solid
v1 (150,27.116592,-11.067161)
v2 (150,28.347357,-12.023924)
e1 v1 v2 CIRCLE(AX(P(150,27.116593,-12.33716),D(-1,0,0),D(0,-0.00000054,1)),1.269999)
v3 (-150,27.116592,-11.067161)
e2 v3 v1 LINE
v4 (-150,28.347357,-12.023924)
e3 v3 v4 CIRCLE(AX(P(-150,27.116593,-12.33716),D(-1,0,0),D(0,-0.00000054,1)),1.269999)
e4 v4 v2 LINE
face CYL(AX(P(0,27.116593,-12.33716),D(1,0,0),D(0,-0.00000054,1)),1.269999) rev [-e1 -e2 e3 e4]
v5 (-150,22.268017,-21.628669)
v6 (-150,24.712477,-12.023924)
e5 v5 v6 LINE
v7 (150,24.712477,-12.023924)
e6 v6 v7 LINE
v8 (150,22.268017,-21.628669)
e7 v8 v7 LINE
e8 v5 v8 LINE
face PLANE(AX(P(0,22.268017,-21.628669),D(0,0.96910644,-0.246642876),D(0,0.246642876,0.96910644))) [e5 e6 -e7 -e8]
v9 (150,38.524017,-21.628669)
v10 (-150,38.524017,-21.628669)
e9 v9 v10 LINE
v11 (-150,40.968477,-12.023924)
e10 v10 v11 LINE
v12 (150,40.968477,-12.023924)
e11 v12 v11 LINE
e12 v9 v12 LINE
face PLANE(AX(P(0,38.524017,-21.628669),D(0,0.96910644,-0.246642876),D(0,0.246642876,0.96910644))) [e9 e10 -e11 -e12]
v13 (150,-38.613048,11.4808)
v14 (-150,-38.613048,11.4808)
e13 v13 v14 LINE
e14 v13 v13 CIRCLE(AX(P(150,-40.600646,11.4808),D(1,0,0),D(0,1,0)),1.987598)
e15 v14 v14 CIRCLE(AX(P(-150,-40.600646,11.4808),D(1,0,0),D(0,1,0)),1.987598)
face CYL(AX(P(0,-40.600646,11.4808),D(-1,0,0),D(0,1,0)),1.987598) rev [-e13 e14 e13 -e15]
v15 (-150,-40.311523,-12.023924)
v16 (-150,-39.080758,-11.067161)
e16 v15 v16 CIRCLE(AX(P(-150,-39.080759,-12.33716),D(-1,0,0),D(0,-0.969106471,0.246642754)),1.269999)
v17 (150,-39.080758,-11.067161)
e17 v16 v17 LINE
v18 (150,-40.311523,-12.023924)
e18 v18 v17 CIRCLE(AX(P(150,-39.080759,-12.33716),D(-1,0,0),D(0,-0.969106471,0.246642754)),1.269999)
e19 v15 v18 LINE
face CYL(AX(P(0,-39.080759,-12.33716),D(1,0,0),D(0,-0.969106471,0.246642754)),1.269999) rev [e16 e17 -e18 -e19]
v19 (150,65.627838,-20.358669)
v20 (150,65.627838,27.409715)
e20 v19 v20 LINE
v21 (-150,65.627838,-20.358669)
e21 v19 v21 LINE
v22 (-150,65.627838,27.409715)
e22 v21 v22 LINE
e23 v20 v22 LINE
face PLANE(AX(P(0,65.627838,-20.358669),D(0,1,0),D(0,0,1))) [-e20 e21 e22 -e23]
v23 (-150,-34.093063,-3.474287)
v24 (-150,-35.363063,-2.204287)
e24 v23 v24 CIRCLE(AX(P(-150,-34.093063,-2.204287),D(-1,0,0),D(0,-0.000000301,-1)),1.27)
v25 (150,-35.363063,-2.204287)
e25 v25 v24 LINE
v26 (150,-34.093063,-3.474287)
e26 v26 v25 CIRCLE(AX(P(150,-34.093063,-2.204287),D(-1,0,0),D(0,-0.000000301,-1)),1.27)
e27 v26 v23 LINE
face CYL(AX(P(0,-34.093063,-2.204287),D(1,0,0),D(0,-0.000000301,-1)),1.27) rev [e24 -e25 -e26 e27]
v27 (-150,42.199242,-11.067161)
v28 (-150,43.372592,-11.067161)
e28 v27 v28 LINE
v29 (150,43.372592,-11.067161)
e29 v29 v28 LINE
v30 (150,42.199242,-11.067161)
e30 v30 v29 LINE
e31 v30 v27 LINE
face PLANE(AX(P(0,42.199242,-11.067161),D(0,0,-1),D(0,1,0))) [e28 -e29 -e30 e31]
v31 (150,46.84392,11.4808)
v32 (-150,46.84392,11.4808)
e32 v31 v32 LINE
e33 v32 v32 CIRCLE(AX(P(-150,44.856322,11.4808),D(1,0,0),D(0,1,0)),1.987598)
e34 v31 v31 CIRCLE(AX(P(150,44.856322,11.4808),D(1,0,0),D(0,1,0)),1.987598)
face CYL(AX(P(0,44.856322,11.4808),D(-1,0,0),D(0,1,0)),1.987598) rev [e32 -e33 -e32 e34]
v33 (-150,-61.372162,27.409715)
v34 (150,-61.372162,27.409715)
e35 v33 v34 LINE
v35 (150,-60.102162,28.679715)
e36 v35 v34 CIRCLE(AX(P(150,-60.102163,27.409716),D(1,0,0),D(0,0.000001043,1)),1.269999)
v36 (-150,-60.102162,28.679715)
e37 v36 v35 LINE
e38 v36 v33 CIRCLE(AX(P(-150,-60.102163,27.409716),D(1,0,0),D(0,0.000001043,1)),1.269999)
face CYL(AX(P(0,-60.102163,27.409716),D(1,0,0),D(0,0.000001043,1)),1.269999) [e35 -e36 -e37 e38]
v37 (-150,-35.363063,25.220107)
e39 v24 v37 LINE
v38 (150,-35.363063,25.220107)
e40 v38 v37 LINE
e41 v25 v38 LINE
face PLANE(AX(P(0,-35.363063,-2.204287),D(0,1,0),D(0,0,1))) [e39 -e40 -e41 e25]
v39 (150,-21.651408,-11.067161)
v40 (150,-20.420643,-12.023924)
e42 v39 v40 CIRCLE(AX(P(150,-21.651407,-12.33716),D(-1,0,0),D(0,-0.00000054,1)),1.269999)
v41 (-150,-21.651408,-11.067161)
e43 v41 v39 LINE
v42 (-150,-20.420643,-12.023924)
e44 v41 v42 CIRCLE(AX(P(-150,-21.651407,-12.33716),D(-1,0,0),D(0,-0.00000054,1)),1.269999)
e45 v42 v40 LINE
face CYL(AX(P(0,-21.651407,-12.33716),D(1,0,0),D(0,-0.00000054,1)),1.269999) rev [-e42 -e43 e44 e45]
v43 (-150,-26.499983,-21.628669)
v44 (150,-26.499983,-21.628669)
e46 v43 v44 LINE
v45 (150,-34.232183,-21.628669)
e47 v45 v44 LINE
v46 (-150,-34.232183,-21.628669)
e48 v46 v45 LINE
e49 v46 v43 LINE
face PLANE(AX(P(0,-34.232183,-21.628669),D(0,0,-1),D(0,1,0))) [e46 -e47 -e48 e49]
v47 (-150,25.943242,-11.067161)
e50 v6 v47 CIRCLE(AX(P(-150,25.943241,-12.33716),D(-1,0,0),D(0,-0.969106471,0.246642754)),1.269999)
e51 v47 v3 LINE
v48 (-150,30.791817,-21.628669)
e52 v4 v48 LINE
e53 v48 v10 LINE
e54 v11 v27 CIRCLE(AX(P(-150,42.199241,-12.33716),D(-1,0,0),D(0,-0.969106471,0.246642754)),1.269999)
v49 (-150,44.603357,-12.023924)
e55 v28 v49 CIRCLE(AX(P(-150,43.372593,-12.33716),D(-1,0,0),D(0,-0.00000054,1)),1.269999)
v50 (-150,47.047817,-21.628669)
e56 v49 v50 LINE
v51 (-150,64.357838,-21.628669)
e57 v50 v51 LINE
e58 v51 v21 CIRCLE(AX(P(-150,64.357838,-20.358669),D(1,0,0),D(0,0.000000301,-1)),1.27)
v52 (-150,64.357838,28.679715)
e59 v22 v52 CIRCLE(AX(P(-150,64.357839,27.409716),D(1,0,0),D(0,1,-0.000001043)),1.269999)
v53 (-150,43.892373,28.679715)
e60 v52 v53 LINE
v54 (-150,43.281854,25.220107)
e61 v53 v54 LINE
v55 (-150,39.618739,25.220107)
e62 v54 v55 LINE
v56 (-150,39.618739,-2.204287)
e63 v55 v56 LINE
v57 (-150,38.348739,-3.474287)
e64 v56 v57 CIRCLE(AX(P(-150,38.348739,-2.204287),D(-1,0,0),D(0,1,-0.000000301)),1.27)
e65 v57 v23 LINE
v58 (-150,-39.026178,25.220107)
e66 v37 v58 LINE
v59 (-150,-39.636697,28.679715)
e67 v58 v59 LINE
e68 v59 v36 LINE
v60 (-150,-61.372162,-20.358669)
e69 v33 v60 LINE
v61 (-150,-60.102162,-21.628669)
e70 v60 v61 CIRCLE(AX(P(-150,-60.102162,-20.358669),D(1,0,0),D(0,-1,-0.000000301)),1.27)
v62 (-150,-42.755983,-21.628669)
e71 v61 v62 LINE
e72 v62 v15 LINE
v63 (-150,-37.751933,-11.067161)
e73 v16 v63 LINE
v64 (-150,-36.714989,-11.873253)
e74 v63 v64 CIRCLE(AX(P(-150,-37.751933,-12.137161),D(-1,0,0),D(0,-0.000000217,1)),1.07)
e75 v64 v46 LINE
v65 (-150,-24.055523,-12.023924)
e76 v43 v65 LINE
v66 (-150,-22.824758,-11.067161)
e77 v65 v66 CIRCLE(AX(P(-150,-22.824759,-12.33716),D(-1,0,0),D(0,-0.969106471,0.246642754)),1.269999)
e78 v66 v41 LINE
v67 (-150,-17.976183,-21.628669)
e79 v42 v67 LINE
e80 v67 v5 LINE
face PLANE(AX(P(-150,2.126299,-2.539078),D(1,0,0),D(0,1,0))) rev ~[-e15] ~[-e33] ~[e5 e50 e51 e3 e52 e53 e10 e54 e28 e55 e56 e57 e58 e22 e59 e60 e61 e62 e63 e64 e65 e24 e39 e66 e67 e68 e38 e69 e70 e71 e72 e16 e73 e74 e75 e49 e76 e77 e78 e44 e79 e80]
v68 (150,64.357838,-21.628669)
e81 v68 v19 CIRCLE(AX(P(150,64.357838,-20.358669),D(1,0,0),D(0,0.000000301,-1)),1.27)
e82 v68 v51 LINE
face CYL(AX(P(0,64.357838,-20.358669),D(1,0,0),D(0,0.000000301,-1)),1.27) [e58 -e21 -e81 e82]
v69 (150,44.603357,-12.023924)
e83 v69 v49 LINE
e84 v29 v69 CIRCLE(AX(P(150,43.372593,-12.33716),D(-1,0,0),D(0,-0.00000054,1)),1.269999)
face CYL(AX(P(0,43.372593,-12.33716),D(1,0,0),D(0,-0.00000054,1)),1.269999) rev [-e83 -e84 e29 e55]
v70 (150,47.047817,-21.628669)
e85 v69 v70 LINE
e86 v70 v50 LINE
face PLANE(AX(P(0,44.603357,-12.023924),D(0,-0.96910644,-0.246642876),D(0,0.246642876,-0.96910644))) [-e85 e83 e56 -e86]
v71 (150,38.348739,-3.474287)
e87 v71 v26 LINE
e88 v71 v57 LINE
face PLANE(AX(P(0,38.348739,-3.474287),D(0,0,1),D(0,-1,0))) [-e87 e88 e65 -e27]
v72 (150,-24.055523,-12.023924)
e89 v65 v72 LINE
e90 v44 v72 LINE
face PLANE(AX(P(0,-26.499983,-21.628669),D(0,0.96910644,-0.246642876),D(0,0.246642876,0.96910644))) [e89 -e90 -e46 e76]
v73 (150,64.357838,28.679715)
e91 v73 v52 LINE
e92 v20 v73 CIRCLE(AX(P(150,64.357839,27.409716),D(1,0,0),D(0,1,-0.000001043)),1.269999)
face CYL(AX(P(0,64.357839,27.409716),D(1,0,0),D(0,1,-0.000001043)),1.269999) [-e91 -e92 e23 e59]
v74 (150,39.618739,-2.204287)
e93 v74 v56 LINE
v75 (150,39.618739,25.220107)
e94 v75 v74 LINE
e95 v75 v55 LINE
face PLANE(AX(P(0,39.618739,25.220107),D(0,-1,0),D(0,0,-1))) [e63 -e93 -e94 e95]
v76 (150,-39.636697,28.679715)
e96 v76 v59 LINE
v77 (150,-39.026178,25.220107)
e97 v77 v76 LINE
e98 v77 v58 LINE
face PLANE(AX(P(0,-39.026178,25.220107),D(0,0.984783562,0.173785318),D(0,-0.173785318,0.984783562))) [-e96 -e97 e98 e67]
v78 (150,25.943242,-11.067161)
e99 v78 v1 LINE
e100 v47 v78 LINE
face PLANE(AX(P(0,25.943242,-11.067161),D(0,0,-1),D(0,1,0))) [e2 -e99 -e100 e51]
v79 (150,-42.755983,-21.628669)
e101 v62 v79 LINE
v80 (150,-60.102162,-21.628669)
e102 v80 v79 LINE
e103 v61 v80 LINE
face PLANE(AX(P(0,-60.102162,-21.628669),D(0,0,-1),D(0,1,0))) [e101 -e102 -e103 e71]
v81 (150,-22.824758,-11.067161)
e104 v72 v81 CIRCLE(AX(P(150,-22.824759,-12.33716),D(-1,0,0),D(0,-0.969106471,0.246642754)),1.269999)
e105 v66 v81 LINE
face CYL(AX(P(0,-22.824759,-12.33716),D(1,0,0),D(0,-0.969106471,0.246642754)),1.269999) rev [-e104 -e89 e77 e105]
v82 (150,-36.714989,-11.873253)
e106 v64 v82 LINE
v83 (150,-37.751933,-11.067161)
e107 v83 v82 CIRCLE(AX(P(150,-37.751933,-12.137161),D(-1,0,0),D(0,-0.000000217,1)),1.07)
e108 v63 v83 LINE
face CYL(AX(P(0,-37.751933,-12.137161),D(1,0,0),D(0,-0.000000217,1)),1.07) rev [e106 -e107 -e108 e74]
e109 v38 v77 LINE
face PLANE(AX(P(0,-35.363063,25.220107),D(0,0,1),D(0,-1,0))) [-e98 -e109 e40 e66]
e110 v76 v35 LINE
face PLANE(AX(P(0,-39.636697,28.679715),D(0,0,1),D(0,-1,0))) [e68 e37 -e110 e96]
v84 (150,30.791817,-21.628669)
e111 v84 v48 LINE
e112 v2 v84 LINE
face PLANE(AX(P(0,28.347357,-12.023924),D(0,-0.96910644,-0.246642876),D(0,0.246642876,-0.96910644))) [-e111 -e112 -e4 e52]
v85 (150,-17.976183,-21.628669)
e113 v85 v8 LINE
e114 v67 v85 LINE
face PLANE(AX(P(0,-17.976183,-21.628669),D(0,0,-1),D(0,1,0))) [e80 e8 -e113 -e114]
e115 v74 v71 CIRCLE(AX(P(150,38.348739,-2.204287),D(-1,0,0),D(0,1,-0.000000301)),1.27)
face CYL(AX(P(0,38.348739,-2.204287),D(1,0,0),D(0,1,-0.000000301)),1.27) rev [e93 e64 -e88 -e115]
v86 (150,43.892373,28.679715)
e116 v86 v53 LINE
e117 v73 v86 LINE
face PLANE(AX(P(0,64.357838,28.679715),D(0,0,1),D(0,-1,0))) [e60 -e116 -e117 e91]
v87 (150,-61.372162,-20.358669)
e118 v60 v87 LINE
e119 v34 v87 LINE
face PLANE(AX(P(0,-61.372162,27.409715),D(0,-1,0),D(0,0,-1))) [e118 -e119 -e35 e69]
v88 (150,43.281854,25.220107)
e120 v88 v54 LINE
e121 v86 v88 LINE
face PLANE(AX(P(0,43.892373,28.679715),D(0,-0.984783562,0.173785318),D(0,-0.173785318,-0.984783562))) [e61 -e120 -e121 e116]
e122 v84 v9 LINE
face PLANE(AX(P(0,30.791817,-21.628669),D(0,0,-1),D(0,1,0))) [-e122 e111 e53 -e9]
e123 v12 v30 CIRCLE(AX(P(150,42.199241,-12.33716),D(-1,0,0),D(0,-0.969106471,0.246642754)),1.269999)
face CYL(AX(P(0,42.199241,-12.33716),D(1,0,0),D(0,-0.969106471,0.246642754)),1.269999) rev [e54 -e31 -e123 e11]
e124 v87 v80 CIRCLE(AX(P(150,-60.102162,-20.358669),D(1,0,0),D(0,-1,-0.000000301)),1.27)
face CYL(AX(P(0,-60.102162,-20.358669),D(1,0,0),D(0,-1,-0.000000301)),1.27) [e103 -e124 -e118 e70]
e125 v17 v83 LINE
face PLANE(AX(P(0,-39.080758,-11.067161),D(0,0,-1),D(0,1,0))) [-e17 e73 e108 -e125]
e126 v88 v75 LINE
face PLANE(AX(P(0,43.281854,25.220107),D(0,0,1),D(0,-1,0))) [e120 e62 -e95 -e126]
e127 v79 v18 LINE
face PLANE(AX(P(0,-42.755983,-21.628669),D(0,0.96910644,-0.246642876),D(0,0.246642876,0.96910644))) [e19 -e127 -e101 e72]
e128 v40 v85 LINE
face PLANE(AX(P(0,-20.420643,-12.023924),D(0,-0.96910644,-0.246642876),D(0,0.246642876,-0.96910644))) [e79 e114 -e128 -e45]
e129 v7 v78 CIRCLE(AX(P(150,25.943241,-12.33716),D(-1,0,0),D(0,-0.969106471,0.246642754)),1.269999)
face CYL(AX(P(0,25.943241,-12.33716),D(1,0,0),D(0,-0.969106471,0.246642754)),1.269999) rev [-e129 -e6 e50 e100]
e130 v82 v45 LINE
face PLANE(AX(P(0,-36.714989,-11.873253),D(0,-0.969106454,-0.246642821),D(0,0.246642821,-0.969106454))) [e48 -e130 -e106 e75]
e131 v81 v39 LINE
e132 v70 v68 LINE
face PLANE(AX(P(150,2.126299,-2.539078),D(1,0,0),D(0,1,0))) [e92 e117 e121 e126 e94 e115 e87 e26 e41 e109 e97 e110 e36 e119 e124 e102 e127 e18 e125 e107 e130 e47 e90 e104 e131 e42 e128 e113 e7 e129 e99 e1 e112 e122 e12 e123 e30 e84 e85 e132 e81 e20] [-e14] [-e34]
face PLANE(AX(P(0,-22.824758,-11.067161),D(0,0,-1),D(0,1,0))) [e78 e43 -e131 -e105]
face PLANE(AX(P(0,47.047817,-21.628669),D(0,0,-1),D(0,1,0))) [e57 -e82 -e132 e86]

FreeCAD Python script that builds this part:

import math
import FreeCAD as App
import Part
import Sketcher
Q = App.Units.Quantity

doc = App.newDocument("Part")
body = doc.addObject("PartDesign::Body", "Body")

# Sketch on YZ plane
sketch1 = body.newObject("Sketcher::SketchObject", "Sketch")
sketch1.AttachmentSupport = (doc.getObject("YZ_Plane"), [""])
sketch1.MapMode = "FlatFace"
sketch1.addGeometry([
    Part.LineSegment(App.Vector(-39.6, 28.7, 0), App.Vector(-60.1, 28.7, 0)),  # 0
    Part.ArcOfCircle(Part.Circle(App.Vector(-60.1, 27.4, 0), App.Vector(0, 0, 1), 1.3), math.radians(90), math.radians(180)),  # 1
    Part.LineSegment(App.Vector(-61.4, 27.4, 0), App.Vector(-61.4, -20.4, 0)),  # 2
    Part.ArcOfCircle(Part.Circle(App.Vector(-60.1, -20.4, 0), App.Vector(0, 0, 1), 1.3), math.radians(-180), math.radians(-90)),  # 3
    Part.LineSegment(App.Vector(-60.1, -21.6, 0), App.Vector(-42.8, -21.6, 0)),  # 4
    Part.LineSegment(App.Vector(-42.8, -21.6, 0), App.Vector(-40.3, -12, 0)),  # 5
    Part.ArcOfCircle(Part.Circle(App.Vector(-39.1, -12.3, 0), App.Vector(0, 0, 1), 1.3), math.radians(90), math.radians(166)),  # 6
    Part.LineSegment(App.Vector(-39.1, -11.1, 0), App.Vector(-37.8, -11.1, 0)),  # 7
    Part.ArcOfCircle(Part.Circle(App.Vector(-37.8, -12.1, 0), App.Vector(0, 0, 1), 1.1), math.radians(14), math.radians(90)),  # 8
    Part.LineSegment(App.Vector(-36.7, -11.9, 0), App.Vector(-34.2, -21.6, 0)),  # 9
    Part.LineSegment(App.Vector(-34.2, -21.6, 0), App.Vector(-26.5, -21.6, 0)),  # 10
    Part.LineSegment(App.Vector(-26.5, -21.6, 0), App.Vector(-24.1, -12, 0)),  # 11
    Part.ArcOfCircle(Part.Circle(App.Vector(-22.8, -12.3, 0), App.Vector(0, 0, 1), 1.3), math.radians(90), math.radians(166)),  # 12
    Part.LineSegment(App.Vector(-22.8, -11.1, 0), App.Vector(-21.7, -11.1, 0)),  # 13
    Part.ArcOfCircle(Part.Circle(App.Vector(-21.7, -12.3, 0), App.Vector(0, 0, 1), 1.3), math.radians(14), math.radians(90)),  # 14
    Part.LineSegment(App.Vector(-20.4, -12, 0), App.Vector(-18, -21.6, 0)),  # 15
    Part.LineSegment(App.Vector(-18, -21.6, 0), App.Vector(22.3, -21.6, 0)),  # 16
    Part.LineSegment(App.Vector(22.3, -21.6, 0), App.Vector(24.7, -12, 0)),  # 17
    Part.ArcOfCircle(Part.Circle(App.Vector(25.9, -12.3, 0), App.Vector(0, 0, 1), 1.3), math.radians(90), math.radians(166)),  # 18
    Part.LineSegment(App.Vector(25.9, -11.1, 0), App.Vector(27.1, -11.1, 0)),  # 19
    Part.ArcOfCircle(Part.Circle(App.Vector(27.1, -12.3, 0), App.Vector(0, 0, 1), 1.3), math.radians(14), math.radians(90)),  # 20
    Part.LineSegment(App.Vector(28.3, -12, 0), App.Vector(30.8, -21.6, 0)),  # 21
    Part.LineSegment(App.Vector(30.8, -21.6, 0), App.Vector(38.5, -21.6, 0)),  # 22
    Part.LineSegment(App.Vector(38.5, -21.6, 0), App.Vector(41, -12, 0)),  # 23
    Part.ArcOfCircle(Part.Circle(App.Vector(42.2, -12.3, 0), App.Vector(0, 0, 1), 1.3), math.radians(90), math.radians(166)),  # 24
    Part.LineSegment(App.Vector(42.2, -11.1, 0), App.Vector(43.4, -11.1, 0)),  # 25
    Part.ArcOfCircle(Part.Circle(App.Vector(43.4, -12.3, 0), App.Vector(0, 0, 1), 1.3), math.radians(14), math.radians(90)),  # 26
    Part.LineSegment(App.Vector(44.6, -12, 0), App.Vector(47, -21.6, 0)),  # 27
    Part.LineSegment(App.Vector(47, -21.6, 0), App.Vector(64.4, -21.6, 0)),  # 28
    Part.ArcOfCircle(Part.Circle(App.Vector(64.4, -20.4, 0), App.Vector(0, 0, 1), 1.3), math.radians(-90), math.radians(0)),  # 29
    Part.LineSegment(App.Vector(65.6, -20.4, 0), App.Vector(65.6, 27.4, 0)),  # 30
    Part.ArcOfCircle(Part.Circle(App.Vector(64.4, 27.4, 0), App.Vector(0, 0, 1), 1.3), math.radians(0), math.radians(90)),  # 31
    Part.LineSegment(App.Vector(64.4, 28.7, 0), App.Vector(43.9, 28.7, 0)),  # 32
    Part.LineSegment(App.Vector(43.9, 28.7, 0), App.Vector(43.3, 25.2, 0)),  # 33
    Part.LineSegment(App.Vector(43.3, 25.2, 0), App.Vector(39.6, 25.2, 0)),  # 34
    Part.LineSegment(App.Vector(39.6, 25.2, 0), App.Vector(39.6, -2.2, 0)),  # 35
    Part.ArcOfCircle(Part.Circle(App.Vector(38.3, -2.2, 0), App.Vector(0, 0, 1), 1.3), math.radians(-90), math.radians(0)),  # 36
    Part.LineSegment(App.Vector(38.3, -3.5, 0), App.Vector(-34.1, -3.5, 0)),  # 37
    Part.ArcOfCircle(Part.Circle(App.Vector(-34.1, -2.2, 0), App.Vector(0, 0, 1), 1.3), math.radians(-180), math.radians(-90)),  # 38
    Part.LineSegment(App.Vector(-35.4, -2.2, 0), App.Vector(-35.4, 25.2, 0)),  # 39
    Part.LineSegment(App.Vector(-35.4, 25.2, 0), App.Vector(-39, 25.2, 0)),  # 40
    Part.LineSegment(App.Vector(-39, 25.2, 0), App.Vector(-39.6, 28.7, 0)),  # 41
    Part.Circle(App.Vector(-40.6, 11.5, 0), App.Vector(0, 0, 1), 2),  # 42
    Part.Circle(App.Vector(44.9, 11.5, 0), App.Vector(0, 0, 1), 2),  # 43
], False)
sketch1.addConstraint([
    Sketcher.Constraint("Tangent", 0, 2, 1, 1),
    Sketcher.Constraint("Tangent", 1, 2, 2, 1),
    Sketcher.Constraint("Tangent", 2, 2, 3, 1),
    Sketcher.Constraint("Tangent", 3, 2, 4, 1),
    Sketcher.Constraint("Coincident", 4, 2, 5, 1),
    Sketcher.Constraint("Tangent", 5, 2, 6, 2),
    Sketcher.Constraint("Tangent", 6, 1, 7, 1),
    Sketcher.Constraint("Tangent", 7, 2, 8, 2),
    Sketcher.Constraint("Tangent", 8, 1, 9, 1),
    Sketcher.Constraint("Coincident", 9, 2, 10, 1),
    Sketcher.Constraint("Coincident", 10, 2, 11, 1),
    Sketcher.Constraint("Tangent", 11, 2, 12, 2),
    Sketcher.Constraint("Tangent", 12, 1, 13, 1),
    Sketcher.Constraint("Tangent", 13, 2, 14, 2),
    Sketcher.Constraint("Tangent", 14, 1, 15, 1),
    Sketcher.Constraint("Coincident", 15, 2, 16, 1),
    Sketcher.Constraint("Coincident", 16, 2, 17, 1),
    Sketcher.Constraint("Tangent", 17, 2, 18, 2),
    Sketcher.Constraint("Tangent", 18, 1, 19, 1),
    Sketcher.Constraint("Tangent", 19, 2, 20, 2),
    Sketcher.Constraint("Tangent", 20, 1, 21, 1),
    Sketcher.Constraint("Coincident", 21, 2, 22, 1),
    Sketcher.Constraint("Coincident", 22, 2, 23, 1),
    Sketcher.Constraint("Tangent", 23, 2, 24, 2),
    Sketcher.Constraint("Tangent", 24, 1, 25, 1),
    Sketcher.Constraint("Tangent", 25, 2, 26, 2),
    Sketcher.Constraint("Tangent", 26, 1, 27, 1),
    Sketcher.Constraint("Coincident", 27, 2, 28, 1),
    Sketcher.Constraint("Tangent", 28, 2, 29, 1),
    Sketcher.Constraint("Tangent", 29, 2, 30, 1),
    Sketcher.Constraint("Tangent", 30, 2, 31, 1),
    Sketcher.Constraint("Tangent", 31, 2, 32, 1),
    Sketcher.Constraint("Coincident", 32, 2, 33, 1),
    Sketcher.Constraint("Coincident", 33, 2, 34, 1),
    Sketcher.Constraint("Coincident", 34, 2, 35, 1),
    Sketcher.Constraint("Tangent", 35, 2, 36, 2),
    Sketcher.Constraint("Tangent", 36, 1, 37, 1),
    Sketcher.Constraint("Tangent", 37, 2, 38, 2),
    Sketcher.Constraint("Tangent", 38, 1, 39, 1),
    Sketcher.Constraint("Coincident", 39, 2, 40, 1),
    Sketcher.Constraint("Coincident", 40, 2, 41, 1),
    Sketcher.Constraint("Coincident", 41, 2, 0, 1),
    Sketcher.Constraint("Horizontal", 0),
    Sketcher.Constraint("Vertical", 2),
    Sketcher.Constraint("Horizontal", 4),
    Sketcher.Constraint("Horizontal", 7),
    Sketcher.Constraint("Horizontal", 10),
    Sketcher.Constraint("Horizontal", 13),
    Sketcher.Constraint("Horizontal", 16),
    Sketcher.Constraint("Horizontal", 19),
    Sketcher.Constraint("Horizontal", 22),
    Sketcher.Constraint("Horizontal", 25),
    Sketcher.Constraint("Horizontal", 28),
    Sketcher.Constraint("Vertical", 30),
    Sketcher.Constraint("Horizontal", 32),
    Sketcher.Constraint("Horizontal", 34),
    Sketcher.Constraint("Vertical", 35),
    Sketcher.Constraint("Horizontal", 37),
    Sketcher.Constraint("Vertical", 39),
    Sketcher.Constraint("Horizontal", 40),
    Sketcher.Constraint("Equal", 1, 3),
    Sketcher.Constraint("Equal", 3, 6),
    Sketcher.Constraint("Equal", 6, 12),
    Sketcher.Constraint("Equal", 12, 14),
    Sketcher.Constraint("Equal", 14, 18),
    Sketcher.Constraint("Equal", 18, 20),
    Sketcher.Constraint("Equal", 20, 24),
    Sketcher.Constraint("Equal", 24, 26),
    Sketcher.Constraint("Equal", 26, 29),
    Sketcher.Constraint("Equal", 29, 31),
    Sketcher.Constraint("Equal", 31, 36),
    Sketcher.Constraint("Equal", 36, 38),
    Sketcher.Constraint("Equal", 42, 43),
    Sketcher.Constraint("Parallel", 5, 11),
    Sketcher.Constraint("Parallel", 9, 15),
    Sketcher.Constraint("Parallel", 11, 17),
    Sketcher.Constraint("Parallel", 15, 21),
    Sketcher.Constraint("Parallel", 17, 23),
    Sketcher.Constraint("Parallel", 21, 27),
    Sketcher.Constraint("Horizontal", 6, 3, 12, 3),
    Sketcher.Constraint("Horizontal", 14, 3, 18, 3),
    Sketcher.Constraint("Horizontal", 20, 3, 24, 3),
    Sketcher.Constraint("Horizontal", 3, 3, 29, 3),
    Sketcher.Constraint("Horizontal", 1, 3, 31, 3),
    Sketcher.Constraint("Horizontal", 42, 3, 43, 3),
    Sketcher.Constraint("Horizontal", 4, 2, 9, 2),
    Sketcher.Constraint("Horizontal", 11, 2, 14, 1),
    Sketcher.Constraint("Horizontal", 10, 2, 15, 2),
    Sketcher.Constraint("Horizontal", 16, 2, 21, 2),
    Sketcher.Constraint("Horizontal", 34, 2, 39, 2),
    Sketcher.Constraint("Equal", 13, 19),
    Sketcher.Constraint("Equal", 10, 22),
    Sketcher.Constraint("Equal", 19, 25),
    Sketcher.Constraint("Equal", 0, 32),
    Sketcher.Constraint("Equal", 34, 40),
    Sketcher.Constraint("Equal", 33, 41),
    Sketcher.Constraint("Radius", 1, Q("0.0499999 in")),
    Sketcher.Constraint("Radius", 8, Q("1.07 mm")),
    Sketcher.Constraint("DistanceX", 6, 3, 12, 3, Q("0.64 in")),
    Sketcher.Constraint("DistanceX", 12, 3, 18, 3, Q("1.92 in")),
    Sketcher.Constraint("DistanceX", 18, 3, 24, 3, Q("0.64 in")),
    Sketcher.Constraint("DistanceY", -1, 1, 42, 3, Q("0.452 in")),
    Sketcher.Constraint("Diameter", 42, Q("3.975196 mm")),
    Sketcher.Constraint("DistanceX", 10, 1, 10, 2, Q("7.7322 mm")),
    Sketcher.Constraint("DistanceX", 37, 2, 37, 1, Q("72.441802 mm")),
    Sketcher.Constraint("DistanceX", 41, 2, -1, 1, Q("1.5604999 in")),
    Sketcher.Constraint("DistanceY", 5, 2, 38, 3, Q("0.3865999 in")),
    Sketcher.Constraint("DistanceX", 4, 1, 4, 2, Q("17.346179 mm")),
    Sketcher.Constraint("DistanceX", 13, 1, 13, 2, Q("1.17335 mm")),
    Sketcher.Constraint("DistanceX", 28, 1, 28, 2, Q("17.310021 mm")),
    Sketcher.Constraint("DistanceY", 38, 3, 0, 2, Q("30.884002 mm")),
    Sketcher.Constraint("Distance", 5, Q("9.910929 mm")),
    Sketcher.Constraint("DistanceX", 0, 2, 0, 1, Q("20.465465 mm")),
    Sketcher.Constraint("DistanceX", 34, 2, 34, 1, Q("3.663115 mm")),
    Sketcher.Constraint("DistanceY", 35, 2, 35, 1, Q("27.424394 mm")),
    Sketcher.Constraint("DistanceY", 3, 3, -1, 1, Q("20.358669 mm")),
    Sketcher.Constraint("DistanceX", 26, 3, 43, 3, Q("1.483729 mm")),
    Sketcher.Constraint("DistanceX", 42, 3, 41, 2, Q("0.963949 mm")),
])
pad1 = body.newObject("PartDesign::Pad", "Pad")
pad1.Profile = sketch1
pad1.Length = 300
pad1.Midplane = True

doc.recompute()
